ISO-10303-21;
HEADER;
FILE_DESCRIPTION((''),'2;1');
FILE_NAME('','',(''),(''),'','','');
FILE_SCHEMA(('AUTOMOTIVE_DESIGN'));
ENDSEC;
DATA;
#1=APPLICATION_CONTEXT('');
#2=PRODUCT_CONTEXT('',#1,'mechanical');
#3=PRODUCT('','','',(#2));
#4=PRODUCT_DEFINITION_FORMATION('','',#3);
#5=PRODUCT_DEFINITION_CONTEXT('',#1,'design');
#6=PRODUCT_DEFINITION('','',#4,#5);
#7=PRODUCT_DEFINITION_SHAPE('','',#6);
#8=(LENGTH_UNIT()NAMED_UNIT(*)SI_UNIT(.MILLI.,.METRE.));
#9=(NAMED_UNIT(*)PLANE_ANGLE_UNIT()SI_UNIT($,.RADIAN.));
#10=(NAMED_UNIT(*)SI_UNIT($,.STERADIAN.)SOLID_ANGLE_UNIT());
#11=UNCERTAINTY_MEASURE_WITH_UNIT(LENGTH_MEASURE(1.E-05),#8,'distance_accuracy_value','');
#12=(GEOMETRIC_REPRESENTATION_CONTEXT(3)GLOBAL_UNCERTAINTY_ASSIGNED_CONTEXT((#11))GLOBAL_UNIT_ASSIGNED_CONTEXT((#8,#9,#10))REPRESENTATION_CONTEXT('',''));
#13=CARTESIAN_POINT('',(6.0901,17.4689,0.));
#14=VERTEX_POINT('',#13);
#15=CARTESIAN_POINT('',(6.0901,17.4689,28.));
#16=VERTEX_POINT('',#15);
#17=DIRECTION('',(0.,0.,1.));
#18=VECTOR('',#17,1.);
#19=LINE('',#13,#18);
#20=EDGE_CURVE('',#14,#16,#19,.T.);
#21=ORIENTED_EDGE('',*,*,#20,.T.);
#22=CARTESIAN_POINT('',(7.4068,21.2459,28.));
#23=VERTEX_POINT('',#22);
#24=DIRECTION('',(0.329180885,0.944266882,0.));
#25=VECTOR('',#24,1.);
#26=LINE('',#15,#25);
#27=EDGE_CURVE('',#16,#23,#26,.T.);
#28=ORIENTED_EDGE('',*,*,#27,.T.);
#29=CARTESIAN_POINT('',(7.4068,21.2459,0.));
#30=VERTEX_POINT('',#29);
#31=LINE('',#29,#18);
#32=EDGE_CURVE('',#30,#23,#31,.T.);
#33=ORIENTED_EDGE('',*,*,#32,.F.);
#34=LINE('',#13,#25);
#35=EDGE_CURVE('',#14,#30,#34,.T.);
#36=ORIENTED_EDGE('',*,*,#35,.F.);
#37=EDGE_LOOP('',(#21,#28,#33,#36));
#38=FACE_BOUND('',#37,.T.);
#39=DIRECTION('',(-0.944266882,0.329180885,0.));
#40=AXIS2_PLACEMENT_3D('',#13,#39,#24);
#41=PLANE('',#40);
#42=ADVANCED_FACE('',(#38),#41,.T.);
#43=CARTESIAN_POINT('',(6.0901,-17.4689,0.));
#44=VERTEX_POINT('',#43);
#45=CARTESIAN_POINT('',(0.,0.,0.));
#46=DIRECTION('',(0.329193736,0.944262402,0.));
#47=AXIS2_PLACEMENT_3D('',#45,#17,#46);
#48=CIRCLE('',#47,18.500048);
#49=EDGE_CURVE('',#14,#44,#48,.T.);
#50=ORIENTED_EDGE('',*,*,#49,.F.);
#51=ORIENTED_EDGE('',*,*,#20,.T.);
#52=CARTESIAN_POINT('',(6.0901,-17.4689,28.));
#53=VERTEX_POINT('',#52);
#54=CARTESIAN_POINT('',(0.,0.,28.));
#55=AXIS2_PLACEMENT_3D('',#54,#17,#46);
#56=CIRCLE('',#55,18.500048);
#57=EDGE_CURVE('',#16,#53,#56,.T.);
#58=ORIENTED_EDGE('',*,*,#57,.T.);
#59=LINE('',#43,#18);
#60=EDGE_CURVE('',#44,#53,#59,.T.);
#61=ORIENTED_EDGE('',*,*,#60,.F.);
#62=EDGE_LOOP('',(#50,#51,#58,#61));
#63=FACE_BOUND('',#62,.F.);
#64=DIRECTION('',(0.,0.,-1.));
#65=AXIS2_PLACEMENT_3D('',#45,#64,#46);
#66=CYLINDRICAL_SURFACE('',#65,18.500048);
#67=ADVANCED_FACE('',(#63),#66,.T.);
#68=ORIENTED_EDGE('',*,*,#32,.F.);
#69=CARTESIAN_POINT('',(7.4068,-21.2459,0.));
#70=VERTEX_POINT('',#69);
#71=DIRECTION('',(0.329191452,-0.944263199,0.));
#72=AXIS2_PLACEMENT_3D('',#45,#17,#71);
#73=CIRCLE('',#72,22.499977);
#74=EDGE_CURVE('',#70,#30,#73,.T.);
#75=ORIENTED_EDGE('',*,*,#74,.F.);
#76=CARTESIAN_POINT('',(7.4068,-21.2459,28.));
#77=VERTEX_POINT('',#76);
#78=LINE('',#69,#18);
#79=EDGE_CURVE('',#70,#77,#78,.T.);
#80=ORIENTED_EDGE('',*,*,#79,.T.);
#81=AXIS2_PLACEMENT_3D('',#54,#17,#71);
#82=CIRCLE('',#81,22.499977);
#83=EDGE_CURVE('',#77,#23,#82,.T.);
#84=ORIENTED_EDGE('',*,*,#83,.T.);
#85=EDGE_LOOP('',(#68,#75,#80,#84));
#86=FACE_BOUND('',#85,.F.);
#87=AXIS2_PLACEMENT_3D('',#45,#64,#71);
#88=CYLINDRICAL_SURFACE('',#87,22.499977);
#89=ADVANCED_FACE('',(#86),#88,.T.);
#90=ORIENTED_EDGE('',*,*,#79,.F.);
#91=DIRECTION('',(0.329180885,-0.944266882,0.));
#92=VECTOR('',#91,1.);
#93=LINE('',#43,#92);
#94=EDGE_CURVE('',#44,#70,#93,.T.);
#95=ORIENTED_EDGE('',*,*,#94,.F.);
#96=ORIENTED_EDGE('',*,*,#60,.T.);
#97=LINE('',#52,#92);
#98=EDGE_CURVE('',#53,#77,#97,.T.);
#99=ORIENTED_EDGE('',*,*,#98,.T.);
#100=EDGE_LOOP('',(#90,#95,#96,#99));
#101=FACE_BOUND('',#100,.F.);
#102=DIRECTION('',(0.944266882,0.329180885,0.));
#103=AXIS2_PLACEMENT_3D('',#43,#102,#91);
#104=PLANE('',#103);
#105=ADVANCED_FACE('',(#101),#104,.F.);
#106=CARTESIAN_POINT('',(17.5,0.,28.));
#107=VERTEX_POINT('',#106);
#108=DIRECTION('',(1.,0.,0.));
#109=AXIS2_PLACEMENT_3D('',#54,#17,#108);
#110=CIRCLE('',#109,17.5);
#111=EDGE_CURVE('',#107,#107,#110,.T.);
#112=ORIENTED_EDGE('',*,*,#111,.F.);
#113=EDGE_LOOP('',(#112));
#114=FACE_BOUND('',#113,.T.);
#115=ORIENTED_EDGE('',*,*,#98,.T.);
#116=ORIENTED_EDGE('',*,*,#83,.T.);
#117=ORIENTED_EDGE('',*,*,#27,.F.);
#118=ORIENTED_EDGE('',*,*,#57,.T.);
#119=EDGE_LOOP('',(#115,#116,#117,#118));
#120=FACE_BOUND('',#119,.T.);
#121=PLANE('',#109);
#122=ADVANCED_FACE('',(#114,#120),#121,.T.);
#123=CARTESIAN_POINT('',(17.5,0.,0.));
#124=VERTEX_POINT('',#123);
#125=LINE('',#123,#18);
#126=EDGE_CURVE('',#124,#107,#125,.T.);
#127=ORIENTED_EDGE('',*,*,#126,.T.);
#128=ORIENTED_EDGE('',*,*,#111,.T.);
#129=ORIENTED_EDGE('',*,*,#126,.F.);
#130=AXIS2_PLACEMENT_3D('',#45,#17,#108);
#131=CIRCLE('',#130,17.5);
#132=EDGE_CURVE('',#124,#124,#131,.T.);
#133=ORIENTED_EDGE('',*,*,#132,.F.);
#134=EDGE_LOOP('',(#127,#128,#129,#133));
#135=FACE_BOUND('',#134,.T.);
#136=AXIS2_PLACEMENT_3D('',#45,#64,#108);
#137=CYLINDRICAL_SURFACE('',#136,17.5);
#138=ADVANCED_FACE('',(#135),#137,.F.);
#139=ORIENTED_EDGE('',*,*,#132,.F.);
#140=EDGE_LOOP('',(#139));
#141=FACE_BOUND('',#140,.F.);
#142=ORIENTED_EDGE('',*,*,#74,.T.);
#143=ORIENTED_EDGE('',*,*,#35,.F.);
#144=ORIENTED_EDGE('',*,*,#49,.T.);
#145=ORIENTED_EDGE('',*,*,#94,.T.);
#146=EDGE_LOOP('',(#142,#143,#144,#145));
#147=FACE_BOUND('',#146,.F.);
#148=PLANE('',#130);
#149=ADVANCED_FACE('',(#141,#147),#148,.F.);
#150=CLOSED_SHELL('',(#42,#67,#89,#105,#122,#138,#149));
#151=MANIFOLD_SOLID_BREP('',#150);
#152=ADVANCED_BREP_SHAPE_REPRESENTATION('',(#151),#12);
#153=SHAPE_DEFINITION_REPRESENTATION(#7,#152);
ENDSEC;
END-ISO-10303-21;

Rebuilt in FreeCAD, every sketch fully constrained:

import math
import FreeCAD as App
import Part
import Sketcher
Q = App.Units.Quantity

doc = App.newDocument("Part")
body = doc.addObject("PartDesign::Body", "Body")

sketch1 = body.newObject("Sketcher::SketchObject", "Sketch")
sketch1.AttachmentSupport = (doc.getObject("XY_Plane"), [""])
sketch1.MapMode = "FlatFace"
sketch1.addGeometry([
    Part.LineSegment(App.Vector(6.0901, -17.4689, 0), App.Vector(7.4068, -21.2459, 0)),
    Part.ArcOfCircle(Part.Circle(App.Vector(0, 0, 0), App.Vector(0, 0, 1), 22.499977), math.radians(-70.780293), math.radians(70.780293)),
    Part.LineSegment(App.Vector(7.4068, 21.2459, 0), App.Vector(6.0901, 17.4689, 0)),
    Part.ArcOfCircle(Part.Circle(App.Vector(0, 0, 0), App.Vector(0, 0, 1), 18.500048), math.radians(70.780154), math.radians(289.219846)),
    Part.Circle(App.Vector(0, 0, 0), App.Vector(0, 0, 1), 17.5),
], False)
sketch1.addConstraint([
    Sketcher.Constraint("Coincident", 0, 2, 1, 1),
    Sketcher.Constraint("Coincident", 1, 2, 2, 1),
    Sketcher.Constraint("Coincident", 2, 2, 3, 1),
    Sketcher.Constraint("Coincident", 3, 2, 0, 1),
    Sketcher.Constraint("Coincident", 1, 3, -1, 1),
    Sketcher.Constraint("Coincident", 3, 3, -1, 1),
    Sketcher.Constraint("Coincident", 4, 3, -1, 1),
    Sketcher.Constraint("Vertical", 0, 2, 1, 2),
    Sketcher.Constraint("Vertical", 2, 2, 3, 2),
    Sketcher.Constraint("Diameter", 4, Q("35 mm")),
    Sketcher.Constraint("Radius", 1, Q("22.5 mm")),
    Sketcher.Constraint("Radius", 3, Q("18.5 mm")),
    Sketcher.Constraint("Angle", 0, Q("-70.781 deg")),
    Sketcher.Constraint("DistanceX", -1, 1, 2, 2, Q("6.09 mm")),
])
pad1 = body.newObject("PartDesign::Pad", "Pad")
pad1.Profile = sketch1
pad1.Length = 28

doc.recompute()
